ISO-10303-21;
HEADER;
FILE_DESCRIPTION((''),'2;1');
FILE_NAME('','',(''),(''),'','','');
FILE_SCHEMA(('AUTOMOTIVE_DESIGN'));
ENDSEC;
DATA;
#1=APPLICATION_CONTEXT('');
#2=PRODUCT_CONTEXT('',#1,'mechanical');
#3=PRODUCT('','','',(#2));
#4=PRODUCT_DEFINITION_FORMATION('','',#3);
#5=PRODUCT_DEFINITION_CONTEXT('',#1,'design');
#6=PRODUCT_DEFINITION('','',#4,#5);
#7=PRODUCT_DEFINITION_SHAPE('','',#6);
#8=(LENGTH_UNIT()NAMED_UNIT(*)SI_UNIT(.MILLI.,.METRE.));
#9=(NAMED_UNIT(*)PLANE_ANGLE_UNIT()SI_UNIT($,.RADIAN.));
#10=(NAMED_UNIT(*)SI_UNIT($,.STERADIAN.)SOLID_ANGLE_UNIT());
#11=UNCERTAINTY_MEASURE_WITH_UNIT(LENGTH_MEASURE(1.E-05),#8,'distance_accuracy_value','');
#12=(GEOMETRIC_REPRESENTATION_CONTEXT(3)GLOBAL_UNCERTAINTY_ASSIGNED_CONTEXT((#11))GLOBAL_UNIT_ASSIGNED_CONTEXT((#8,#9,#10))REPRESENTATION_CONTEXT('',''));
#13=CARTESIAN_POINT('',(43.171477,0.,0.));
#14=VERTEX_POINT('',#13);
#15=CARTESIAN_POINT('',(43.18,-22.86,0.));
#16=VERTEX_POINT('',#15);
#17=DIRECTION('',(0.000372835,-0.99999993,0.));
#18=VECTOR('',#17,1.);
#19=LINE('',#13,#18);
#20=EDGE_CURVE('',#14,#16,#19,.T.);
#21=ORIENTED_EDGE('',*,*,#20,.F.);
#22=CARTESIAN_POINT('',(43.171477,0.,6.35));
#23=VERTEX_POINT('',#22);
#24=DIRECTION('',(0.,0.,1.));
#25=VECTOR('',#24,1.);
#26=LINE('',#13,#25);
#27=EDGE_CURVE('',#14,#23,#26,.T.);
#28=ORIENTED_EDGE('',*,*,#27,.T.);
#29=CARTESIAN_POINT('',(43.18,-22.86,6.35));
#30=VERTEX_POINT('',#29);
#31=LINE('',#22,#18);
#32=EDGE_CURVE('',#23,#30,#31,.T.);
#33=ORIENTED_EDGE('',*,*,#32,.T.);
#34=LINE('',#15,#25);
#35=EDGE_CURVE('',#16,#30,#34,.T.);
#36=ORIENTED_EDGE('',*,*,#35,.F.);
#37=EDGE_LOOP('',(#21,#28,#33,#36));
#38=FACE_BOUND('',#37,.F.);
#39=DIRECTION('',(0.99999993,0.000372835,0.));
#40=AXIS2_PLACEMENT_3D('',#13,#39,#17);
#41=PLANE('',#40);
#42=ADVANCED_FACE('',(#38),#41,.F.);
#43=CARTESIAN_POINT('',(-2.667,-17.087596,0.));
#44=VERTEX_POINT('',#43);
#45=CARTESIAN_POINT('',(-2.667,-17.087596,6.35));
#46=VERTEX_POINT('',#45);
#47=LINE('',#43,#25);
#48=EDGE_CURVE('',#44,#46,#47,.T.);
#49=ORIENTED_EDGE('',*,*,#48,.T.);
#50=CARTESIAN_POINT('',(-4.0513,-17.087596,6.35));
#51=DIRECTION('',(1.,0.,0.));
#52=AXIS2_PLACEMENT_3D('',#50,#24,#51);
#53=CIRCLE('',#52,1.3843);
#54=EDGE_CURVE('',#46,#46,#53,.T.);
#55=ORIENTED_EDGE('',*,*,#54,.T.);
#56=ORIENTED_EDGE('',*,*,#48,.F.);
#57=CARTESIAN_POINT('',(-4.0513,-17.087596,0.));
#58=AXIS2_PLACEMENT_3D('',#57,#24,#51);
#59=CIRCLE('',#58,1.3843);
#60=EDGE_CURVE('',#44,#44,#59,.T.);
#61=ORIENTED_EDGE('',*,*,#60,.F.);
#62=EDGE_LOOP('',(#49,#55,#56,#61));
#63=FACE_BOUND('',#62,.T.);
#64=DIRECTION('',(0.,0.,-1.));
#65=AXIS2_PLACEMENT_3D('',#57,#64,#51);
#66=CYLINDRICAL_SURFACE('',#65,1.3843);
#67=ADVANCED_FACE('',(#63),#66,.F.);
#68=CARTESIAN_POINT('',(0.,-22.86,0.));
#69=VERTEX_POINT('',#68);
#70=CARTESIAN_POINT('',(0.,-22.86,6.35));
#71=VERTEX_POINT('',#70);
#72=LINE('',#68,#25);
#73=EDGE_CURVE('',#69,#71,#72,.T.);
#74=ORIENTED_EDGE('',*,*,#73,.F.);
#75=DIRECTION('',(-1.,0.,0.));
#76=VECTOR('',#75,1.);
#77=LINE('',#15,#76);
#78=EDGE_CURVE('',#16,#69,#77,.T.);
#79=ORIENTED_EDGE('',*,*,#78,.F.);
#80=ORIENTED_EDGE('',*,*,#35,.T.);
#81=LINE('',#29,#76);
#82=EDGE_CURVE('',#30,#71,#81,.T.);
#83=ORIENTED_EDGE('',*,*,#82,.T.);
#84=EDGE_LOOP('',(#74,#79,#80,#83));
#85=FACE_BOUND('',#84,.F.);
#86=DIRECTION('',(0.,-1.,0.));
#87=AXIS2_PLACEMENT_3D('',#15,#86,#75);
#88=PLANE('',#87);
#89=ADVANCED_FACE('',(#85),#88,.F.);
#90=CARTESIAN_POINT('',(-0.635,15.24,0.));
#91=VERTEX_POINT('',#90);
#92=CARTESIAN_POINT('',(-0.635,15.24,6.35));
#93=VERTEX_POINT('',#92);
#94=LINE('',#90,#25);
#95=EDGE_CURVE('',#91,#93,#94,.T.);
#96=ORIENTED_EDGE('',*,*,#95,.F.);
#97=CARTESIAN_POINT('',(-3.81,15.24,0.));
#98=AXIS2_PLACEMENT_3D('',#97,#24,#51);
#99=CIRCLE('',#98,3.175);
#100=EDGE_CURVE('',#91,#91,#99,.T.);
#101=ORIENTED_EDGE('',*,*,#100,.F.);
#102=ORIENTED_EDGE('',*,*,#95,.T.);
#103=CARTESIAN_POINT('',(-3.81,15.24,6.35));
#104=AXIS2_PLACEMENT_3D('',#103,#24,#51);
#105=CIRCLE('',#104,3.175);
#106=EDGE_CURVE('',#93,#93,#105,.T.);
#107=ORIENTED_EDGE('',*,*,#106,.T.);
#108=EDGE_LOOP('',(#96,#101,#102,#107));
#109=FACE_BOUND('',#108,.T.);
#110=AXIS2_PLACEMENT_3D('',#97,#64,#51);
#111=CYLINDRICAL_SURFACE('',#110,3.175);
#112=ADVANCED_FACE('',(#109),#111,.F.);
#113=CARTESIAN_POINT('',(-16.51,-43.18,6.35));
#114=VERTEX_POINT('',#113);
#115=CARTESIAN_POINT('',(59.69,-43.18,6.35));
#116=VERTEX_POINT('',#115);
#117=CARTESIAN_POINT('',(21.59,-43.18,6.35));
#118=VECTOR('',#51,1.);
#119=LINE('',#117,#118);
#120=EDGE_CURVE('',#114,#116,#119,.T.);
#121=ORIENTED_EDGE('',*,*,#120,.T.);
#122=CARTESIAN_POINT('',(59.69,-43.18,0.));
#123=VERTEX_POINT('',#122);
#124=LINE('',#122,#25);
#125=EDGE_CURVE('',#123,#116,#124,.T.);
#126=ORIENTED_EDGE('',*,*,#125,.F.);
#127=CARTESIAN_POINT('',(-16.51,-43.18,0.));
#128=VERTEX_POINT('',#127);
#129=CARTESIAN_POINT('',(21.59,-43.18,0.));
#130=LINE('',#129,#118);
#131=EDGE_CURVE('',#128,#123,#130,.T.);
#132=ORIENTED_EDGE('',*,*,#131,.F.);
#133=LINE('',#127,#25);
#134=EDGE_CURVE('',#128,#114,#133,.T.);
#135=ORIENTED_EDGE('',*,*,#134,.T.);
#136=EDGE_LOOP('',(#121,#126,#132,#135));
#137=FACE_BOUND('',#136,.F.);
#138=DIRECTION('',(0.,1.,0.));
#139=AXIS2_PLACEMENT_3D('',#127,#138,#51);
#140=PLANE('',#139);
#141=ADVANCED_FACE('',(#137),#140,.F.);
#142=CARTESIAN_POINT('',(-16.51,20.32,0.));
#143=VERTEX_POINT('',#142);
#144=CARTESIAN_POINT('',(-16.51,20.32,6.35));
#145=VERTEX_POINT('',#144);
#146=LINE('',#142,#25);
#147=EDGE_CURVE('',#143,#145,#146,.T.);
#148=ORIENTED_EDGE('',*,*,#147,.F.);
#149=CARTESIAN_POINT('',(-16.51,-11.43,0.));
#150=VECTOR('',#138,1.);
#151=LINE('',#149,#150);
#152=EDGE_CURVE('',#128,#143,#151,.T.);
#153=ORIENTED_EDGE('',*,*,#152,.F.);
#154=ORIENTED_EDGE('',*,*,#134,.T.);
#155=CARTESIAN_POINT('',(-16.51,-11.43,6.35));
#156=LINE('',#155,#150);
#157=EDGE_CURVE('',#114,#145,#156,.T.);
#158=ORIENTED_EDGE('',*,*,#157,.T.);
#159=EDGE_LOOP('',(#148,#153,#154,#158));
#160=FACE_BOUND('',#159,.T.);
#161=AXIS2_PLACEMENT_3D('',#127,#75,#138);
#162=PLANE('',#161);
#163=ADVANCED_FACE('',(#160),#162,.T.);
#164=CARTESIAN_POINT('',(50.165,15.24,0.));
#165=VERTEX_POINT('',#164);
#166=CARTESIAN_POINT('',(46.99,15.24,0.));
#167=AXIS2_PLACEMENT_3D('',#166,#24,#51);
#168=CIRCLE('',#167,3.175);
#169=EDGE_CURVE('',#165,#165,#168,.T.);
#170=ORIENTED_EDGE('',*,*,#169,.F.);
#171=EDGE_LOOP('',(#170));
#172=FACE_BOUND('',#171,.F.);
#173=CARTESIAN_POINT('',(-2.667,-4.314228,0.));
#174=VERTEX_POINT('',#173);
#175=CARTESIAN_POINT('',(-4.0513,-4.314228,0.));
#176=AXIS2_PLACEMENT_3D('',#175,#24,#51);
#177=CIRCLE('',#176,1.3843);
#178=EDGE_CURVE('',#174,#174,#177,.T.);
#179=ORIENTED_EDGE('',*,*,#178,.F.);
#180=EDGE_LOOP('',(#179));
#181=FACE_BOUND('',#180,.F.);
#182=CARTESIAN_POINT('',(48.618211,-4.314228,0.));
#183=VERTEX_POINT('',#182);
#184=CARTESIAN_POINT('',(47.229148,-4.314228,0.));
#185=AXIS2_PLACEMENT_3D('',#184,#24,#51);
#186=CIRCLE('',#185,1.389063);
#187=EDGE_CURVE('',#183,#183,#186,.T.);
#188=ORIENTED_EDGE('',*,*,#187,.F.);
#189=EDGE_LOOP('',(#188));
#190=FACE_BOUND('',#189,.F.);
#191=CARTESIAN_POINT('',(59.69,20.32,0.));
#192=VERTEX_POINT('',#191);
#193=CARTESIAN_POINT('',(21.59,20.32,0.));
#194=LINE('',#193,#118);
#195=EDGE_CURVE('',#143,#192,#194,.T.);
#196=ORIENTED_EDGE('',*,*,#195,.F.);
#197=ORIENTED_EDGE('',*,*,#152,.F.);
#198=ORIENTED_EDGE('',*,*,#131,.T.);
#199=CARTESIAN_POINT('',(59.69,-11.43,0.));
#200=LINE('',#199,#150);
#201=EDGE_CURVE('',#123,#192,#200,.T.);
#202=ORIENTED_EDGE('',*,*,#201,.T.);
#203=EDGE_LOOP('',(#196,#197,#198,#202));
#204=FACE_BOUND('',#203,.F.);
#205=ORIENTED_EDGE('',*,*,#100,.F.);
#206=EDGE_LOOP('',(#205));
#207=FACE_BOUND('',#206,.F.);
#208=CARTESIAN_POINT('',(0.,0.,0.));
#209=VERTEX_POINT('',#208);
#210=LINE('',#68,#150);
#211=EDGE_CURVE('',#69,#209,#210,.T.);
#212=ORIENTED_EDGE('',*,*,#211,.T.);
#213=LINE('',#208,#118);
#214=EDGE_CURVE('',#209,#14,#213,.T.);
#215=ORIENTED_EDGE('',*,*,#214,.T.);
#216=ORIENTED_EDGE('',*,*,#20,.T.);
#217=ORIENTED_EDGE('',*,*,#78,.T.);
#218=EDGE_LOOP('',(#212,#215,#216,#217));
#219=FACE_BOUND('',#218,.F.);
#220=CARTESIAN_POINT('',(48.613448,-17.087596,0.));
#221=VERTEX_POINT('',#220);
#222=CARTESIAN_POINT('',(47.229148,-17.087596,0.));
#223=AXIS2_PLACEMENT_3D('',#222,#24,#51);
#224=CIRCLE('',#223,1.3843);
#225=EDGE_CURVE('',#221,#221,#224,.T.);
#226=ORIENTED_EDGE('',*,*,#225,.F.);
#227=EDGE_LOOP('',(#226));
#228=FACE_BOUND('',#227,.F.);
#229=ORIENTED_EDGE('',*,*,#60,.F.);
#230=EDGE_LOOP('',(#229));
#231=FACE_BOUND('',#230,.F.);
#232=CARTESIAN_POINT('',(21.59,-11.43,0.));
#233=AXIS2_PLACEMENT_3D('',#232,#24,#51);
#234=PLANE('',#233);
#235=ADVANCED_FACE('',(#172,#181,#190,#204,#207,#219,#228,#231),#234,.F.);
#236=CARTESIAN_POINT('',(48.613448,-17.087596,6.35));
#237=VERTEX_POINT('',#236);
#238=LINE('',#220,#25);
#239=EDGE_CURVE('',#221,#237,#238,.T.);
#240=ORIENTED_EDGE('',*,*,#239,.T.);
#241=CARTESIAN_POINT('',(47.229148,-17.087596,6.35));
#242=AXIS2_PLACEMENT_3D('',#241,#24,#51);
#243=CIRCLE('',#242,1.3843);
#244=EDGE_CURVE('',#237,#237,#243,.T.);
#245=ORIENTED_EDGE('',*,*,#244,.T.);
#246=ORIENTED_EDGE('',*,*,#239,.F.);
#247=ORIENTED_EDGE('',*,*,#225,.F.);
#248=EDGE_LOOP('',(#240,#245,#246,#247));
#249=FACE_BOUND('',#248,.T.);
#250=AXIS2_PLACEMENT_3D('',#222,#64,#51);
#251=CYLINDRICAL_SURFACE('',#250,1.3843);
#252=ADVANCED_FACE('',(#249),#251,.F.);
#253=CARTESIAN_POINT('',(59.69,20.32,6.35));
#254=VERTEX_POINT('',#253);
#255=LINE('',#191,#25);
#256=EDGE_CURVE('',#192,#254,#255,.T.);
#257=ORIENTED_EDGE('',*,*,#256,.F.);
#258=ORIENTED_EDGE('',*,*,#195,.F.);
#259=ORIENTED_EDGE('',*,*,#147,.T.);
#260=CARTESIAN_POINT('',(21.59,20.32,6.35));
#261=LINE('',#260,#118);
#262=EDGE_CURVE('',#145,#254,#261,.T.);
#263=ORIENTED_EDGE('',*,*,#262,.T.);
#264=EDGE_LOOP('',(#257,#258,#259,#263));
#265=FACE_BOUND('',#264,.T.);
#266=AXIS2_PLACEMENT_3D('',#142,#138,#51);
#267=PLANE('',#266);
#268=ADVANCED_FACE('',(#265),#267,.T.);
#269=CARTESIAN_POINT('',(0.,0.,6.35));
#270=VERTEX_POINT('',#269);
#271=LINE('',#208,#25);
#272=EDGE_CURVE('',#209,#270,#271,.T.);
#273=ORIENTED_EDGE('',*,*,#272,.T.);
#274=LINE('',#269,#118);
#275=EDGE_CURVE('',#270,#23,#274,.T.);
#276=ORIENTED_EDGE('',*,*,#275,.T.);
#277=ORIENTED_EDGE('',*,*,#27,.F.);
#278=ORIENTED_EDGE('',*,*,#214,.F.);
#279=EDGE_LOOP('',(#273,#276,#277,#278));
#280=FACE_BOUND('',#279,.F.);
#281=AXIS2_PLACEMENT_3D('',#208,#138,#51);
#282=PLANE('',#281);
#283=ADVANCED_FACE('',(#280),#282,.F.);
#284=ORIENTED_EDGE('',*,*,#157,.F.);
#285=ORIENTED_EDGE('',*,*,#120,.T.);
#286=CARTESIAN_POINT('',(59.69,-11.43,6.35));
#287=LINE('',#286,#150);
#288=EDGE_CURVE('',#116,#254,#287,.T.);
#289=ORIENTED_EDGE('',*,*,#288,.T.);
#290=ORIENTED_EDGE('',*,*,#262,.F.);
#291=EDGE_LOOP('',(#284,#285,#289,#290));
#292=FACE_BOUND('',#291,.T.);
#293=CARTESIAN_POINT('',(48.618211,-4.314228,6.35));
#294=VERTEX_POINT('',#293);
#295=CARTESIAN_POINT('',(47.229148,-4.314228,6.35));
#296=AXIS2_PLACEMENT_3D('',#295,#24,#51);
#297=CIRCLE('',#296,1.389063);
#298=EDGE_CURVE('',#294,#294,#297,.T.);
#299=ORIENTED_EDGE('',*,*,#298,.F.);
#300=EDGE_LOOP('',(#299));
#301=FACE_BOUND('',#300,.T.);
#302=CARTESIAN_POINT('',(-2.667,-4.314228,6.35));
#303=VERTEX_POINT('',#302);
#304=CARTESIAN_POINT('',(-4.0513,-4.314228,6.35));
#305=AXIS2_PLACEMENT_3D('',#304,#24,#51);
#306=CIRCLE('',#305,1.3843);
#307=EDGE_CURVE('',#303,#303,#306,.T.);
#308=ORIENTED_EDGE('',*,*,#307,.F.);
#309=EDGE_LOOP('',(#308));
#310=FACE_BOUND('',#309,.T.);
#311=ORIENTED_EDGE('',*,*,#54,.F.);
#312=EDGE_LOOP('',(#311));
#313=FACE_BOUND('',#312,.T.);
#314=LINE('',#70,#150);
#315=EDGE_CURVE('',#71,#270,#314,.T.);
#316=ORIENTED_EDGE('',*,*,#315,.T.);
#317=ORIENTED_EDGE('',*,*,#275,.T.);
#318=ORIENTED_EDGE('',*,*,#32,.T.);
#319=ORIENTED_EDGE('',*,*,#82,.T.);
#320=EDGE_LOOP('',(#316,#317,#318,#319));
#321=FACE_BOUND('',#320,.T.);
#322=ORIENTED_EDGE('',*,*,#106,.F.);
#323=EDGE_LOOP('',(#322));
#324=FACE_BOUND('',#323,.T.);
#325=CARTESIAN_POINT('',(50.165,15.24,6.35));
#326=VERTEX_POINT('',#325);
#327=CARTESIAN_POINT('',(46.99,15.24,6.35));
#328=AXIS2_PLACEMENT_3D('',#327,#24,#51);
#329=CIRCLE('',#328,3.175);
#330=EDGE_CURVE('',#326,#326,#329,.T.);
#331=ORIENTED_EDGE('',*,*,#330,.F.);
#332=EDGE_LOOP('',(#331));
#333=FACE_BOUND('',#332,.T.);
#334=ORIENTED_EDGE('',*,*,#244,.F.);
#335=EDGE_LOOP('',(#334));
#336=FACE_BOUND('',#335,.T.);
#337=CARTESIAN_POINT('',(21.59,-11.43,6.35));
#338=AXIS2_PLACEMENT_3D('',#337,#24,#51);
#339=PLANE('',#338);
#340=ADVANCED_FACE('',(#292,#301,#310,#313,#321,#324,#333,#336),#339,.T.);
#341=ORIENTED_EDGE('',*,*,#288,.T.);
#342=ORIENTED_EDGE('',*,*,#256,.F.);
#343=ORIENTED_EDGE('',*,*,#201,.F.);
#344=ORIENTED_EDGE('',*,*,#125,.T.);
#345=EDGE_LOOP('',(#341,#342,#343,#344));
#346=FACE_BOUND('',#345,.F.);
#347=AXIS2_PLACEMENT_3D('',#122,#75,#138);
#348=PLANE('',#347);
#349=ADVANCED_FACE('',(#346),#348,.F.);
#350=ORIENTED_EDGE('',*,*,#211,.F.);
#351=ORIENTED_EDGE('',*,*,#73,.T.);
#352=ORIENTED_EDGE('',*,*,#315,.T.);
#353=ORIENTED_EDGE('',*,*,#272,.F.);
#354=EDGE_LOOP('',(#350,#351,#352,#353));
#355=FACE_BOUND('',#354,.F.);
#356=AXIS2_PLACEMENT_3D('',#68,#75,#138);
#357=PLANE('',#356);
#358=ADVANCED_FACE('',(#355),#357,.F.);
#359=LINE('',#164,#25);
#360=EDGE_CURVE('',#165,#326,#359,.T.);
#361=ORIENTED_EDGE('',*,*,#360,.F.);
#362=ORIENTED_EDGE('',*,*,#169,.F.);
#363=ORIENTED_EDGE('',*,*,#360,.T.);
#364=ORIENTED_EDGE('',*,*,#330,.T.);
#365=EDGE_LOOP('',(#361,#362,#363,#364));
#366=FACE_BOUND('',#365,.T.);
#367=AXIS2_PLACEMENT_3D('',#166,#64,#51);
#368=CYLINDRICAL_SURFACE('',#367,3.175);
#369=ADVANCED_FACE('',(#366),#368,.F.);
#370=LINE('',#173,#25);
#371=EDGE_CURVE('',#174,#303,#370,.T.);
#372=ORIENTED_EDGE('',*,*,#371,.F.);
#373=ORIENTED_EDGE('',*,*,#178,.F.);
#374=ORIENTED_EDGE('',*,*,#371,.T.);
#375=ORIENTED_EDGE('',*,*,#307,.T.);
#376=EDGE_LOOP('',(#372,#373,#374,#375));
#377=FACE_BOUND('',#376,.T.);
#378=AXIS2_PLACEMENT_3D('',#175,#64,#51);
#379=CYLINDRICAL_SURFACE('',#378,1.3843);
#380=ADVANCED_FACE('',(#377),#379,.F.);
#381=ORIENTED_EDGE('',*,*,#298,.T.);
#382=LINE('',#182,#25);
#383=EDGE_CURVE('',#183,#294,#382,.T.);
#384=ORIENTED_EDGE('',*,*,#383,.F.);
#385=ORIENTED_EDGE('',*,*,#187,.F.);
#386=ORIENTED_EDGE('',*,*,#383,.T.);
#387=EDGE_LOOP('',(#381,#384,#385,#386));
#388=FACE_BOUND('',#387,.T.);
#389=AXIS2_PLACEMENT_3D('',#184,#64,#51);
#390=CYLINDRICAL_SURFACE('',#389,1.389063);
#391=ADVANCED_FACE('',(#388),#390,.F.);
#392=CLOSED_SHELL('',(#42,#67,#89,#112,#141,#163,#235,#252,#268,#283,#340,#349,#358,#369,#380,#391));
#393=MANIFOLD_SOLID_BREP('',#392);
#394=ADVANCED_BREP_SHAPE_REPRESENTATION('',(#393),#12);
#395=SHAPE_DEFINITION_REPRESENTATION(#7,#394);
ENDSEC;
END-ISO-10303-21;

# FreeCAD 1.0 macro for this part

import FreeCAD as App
import Part
import Sketcher

V = App.Vector
Q = App.Units.Quantity

doc = App.newDocument("Part")
body = doc.addObject("PartDesign::Body", "Body")

# Sketch on XY plane
sketch1 = body.newObject("Sketcher::SketchObject", "Sketch")
sketch1.AttachmentSupport = (doc.getObject("XY_Plane"), [""])
sketch1.MapMode = "FlatFace"
sketch1.addGeometry([
    Part.LineSegment(V(-16.51, 20.32, 0), V(-16.51, -43.18, 0)),  # 0
    Part.LineSegment(V(-16.51, -43.18, 0), V(59.69, -43.18, 0)),  # 1
    Part.LineSegment(V(59.69, -43.18, 0), V(59.69, 20.32, 0)),  # 2
    Part.LineSegment(V(59.69, 20.32, 0), V(-16.51, 20.32, 0)),  # 3
    Part.Circle(V(-4.0513, -17.087596, 0), V(0, 0, 1), 1.3843),  # 4
    Part.Circle(V(-4.0513, -4.314228, 0), V(0, 0, 1), 1.3843),  # 5
    Part.LineSegment(V(43.18, -22.86, 0), V(0, -22.86, 0)),  # 6
    Part.LineSegment(V(0, -22.86, 0), V(0, 0, 0)),  # 7
    Part.LineSegment(V(0, 0, 0), V(43.171477, 0, 0)),  # 8
    Part.LineSegment(V(43.171477, 0, 0), V(43.18, -22.86, 0)),  # 9
    Part.Circle(V(47.229148, -17.087596, 0), V(0, 0, 1), 1.3843),  # 10
    Part.Circle(V(47.229148, -4.314228, 0), V(0, 0, 1), 1.389063),  # 11
    Part.Circle(V(-3.81, 15.24, 0), V(0, 0, 1), 3.175),  # 12
    Part.Circle(V(46.99, 15.24, 0), V(0, 0, 1), 3.175),  # 13
], False)
sketch1.addConstraint([
    Sketcher.Constraint("Coincident", 0, 2, 1, 1),
    Sketcher.Constraint("Coincident", 1, 2, 2, 1),
    Sketcher.Constraint("Coincident", 2, 2, 3, 1),
    Sketcher.Constraint("Coincident", 3, 2, 0, 1),
    Sketcher.Constraint("Coincident", 6, 2, 7, 1),
    Sketcher.Constraint("Coincident", 7, 2, 8, 1),
    Sketcher.Constraint("Coincident", 8, 2, 9, 1),
    Sketcher.Constraint("Coincident", 9, 2, 6, 1),
    Sketcher.Constraint("Vertical", 0),
    Sketcher.Constraint("Horizontal", 1),
    Sketcher.Constraint("Vertical", 2),
    Sketcher.Constraint("Horizontal", 3),
    Sketcher.Constraint("Horizontal", 6),
    Sketcher.Constraint("Vertical", 7),
    Sketcher.Constraint("Horizontal", 8),
    Sketcher.Constraint("Coincident", 7, 2, -1, 1),
    Sketcher.Constraint("Equal", 4, 5),
    Sketcher.Constraint("Equal", 5, 10),
    Sketcher.Constraint("Equal", 12, 13),
    Sketcher.Constraint("Horizontal", 4, 3, 10, 3),
    Sketcher.Constraint("Horizontal", 5, 3, 11, 3),
    Sketcher.Constraint("Horizontal", 12, 3, 13, 3),
    Sketcher.Constraint("Vertical", 4, 3, 5, 3),
    Sketcher.Constraint("Vertical", 10, 3, 11, 3),
    Sketcher.Constraint("Diameter", 12, Q("0.25 in")),
    Sketcher.Constraint("DistanceX", 1, 1, 1, 2, Q("3 in")),
    Sketcher.Constraint("Diameter", 4, Q("0.109 in")),
    Sketcher.Constraint("Diameter", 11, Q("0.109375 in")),
    Sketcher.Constraint("DistanceX", 6, 2, 6, 1, Q("1.7 in")),
    Sketcher.Constraint("DistanceY", 0, 2, 0, 1, Q("2.5 in")),
    Sketcher.Constraint("DistanceY", 7, 1, 7, 2, Q("0.9 in")),
    Sketcher.Constraint("DistanceX", 12, 3, 13, 3, Q("2 in")),
    Sketcher.Constraint("DistanceY", -1, 1, 12, 3, Q("0.6 in")),
    Sketcher.Constraint("DistanceY", 0, 2, -1, 1, Q("1.7 in")),
    Sketcher.Constraint("DistanceX", 0, 2, 12, 3, Q("0.5 in")),
    Sketcher.Constraint("DistanceX", 12, 3, -1, 1, Q("0.15 in")),
    Sketcher.Constraint("DistanceX", 4, 3, -1, 1, Q("0.1595 in")),
    Sketcher.Constraint("DistanceX", 8, 1, 8, 2, 43.171477),
    Sketcher.Constraint("DistanceX", -1, 1, 10, 3, 47.229148),
    Sketcher.Constraint("DistanceY", 4, 3, 5, 3, 12.773368),
    Sketcher.Constraint("DistanceY", 5, 3, 12, 3, 19.554228),
])
pad1 = body.newObject("PartDesign::Pad", "Pad")
pad1.Profile = sketch1
pad1.Length = Q("0.25 in")

doc.recompute()
